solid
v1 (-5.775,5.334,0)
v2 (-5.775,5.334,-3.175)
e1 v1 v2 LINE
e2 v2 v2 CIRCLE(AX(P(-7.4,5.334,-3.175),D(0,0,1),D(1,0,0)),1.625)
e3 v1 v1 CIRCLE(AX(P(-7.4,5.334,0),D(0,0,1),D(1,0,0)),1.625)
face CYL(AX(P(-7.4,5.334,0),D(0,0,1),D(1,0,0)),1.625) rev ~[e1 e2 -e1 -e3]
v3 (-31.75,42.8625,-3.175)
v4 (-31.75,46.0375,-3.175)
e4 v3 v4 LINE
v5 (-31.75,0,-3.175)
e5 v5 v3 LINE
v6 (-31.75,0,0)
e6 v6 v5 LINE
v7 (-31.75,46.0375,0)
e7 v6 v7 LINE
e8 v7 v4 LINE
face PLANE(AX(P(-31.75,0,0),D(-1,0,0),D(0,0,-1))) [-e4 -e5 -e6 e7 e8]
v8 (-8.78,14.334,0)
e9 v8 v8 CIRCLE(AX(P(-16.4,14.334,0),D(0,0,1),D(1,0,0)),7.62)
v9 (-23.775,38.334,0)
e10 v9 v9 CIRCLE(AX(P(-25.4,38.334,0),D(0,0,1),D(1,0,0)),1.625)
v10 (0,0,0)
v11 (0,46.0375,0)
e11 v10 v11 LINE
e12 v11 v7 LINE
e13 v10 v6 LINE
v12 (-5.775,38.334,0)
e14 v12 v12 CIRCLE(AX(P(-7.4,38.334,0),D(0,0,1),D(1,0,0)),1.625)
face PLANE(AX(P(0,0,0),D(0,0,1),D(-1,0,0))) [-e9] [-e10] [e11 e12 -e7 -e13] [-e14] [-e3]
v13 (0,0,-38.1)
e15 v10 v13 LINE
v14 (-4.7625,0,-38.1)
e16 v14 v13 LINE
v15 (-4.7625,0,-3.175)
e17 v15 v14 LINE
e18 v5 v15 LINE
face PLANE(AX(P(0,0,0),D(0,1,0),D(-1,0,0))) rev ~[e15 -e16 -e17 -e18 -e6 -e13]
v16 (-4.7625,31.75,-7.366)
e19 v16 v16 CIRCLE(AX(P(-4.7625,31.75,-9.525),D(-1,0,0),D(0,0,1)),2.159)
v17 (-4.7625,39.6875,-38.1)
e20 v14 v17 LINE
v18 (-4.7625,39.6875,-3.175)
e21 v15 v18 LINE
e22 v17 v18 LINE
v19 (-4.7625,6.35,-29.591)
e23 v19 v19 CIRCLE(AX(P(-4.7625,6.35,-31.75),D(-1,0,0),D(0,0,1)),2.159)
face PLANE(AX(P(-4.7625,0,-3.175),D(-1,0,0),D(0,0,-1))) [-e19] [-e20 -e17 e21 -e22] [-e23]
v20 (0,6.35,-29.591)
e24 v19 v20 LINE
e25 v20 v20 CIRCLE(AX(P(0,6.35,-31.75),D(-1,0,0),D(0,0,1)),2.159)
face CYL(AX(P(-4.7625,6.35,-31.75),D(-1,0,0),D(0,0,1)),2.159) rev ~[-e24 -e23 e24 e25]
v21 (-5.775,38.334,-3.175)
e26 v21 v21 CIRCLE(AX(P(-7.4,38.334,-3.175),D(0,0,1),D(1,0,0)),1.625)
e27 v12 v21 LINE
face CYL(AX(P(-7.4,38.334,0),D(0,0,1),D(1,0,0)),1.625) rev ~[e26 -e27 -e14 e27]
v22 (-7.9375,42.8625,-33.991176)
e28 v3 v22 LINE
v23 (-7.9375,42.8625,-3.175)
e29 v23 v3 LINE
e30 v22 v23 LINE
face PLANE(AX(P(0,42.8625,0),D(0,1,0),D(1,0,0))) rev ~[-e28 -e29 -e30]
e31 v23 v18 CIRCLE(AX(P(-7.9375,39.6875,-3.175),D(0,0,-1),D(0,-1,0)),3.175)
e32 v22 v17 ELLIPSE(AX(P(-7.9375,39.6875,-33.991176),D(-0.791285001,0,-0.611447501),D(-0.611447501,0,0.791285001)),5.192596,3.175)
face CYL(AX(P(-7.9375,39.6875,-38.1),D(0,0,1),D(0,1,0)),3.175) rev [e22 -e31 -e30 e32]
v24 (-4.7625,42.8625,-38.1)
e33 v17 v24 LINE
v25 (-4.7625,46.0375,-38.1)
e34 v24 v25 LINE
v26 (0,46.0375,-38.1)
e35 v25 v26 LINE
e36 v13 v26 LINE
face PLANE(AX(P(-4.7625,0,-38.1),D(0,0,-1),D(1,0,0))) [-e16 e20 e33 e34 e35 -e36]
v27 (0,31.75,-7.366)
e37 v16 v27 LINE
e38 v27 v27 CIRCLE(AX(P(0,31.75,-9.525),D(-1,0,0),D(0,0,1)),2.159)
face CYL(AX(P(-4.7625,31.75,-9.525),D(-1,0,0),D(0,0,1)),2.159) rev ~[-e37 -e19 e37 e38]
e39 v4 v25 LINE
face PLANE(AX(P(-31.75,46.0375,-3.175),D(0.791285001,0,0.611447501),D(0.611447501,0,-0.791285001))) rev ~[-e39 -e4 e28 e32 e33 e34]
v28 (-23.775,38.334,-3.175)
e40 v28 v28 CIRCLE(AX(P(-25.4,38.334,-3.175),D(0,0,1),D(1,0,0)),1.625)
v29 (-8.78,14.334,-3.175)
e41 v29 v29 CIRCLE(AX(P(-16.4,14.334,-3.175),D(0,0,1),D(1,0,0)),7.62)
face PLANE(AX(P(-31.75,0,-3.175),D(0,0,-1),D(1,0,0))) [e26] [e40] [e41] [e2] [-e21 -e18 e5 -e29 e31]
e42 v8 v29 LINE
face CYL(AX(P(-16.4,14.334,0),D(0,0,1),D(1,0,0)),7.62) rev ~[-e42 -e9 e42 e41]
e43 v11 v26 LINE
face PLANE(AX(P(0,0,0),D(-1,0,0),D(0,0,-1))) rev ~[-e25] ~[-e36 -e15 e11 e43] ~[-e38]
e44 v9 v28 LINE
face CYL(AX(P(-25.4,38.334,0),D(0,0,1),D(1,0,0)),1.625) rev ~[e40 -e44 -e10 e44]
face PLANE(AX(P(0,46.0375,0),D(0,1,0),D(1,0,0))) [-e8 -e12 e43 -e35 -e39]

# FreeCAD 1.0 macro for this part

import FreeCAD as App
import Part
import Sketcher

V = App.Vector
Q = App.Units.Quantity


def edges_at(feature, points):
    """Names of the edges that pass closest to the given points."""
    edges = feature.Shape.Edges
    near = lambda p: min(range(len(edges)), key=lambda i: edges[i].distToShape(Part.Vertex(*p))[0])
    return sorted({f"Edge{near(p) + 1}" for p in points})

doc = App.newDocument("Part")
body = doc.addObject("PartDesign::Body", "Body")

sketch1 = body.newObject("Sketcher::SketchObject", "Sketch")
sketch1.AttachmentSupport = (doc.getObject("XZ_Plane"), [""])
sketch1.MapMode = "FlatFace"
sketch1.addGeometry([
    Part.LineSegment(V(-31.8, 0, 0), V(0, 0, 0)),
    Part.LineSegment(V(0, 0, 0), V(0, -38.1, 0)),
    Part.LineSegment(V(0, -38.1, 0), V(-4.8, -38.1, 0)),
    Part.LineSegment(V(-4.8, -38.1, 0), V(-4.8, -3.2, 0)),
    Part.LineSegment(V(-4.8, -3.2, 0), V(-31.8, -3.2, 0)),
    Part.LineSegment(V(-31.8, -3.2, 0), V(-31.8, 0, 0)),
], False)
sketch1.addConstraint([
    Sketcher.Constraint("Coincident", 0, 2, 1, 1),
    Sketcher.Constraint("Coincident", 1, 2, 2, 1),
    Sketcher.Constraint("Coincident", 2, 2, 3, 1),
    Sketcher.Constraint("Coincident", 3, 2, 4, 1),
    Sketcher.Constraint("Coincident", 4, 2, 5, 1),
    Sketcher.Constraint("Coincident", 5, 2, 0, 1),
    Sketcher.Constraint("Horizontal", 0),
    Sketcher.Constraint("Vertical", 1),
    Sketcher.Constraint("Horizontal", 2),
    Sketcher.Constraint("Vertical", 3),
    Sketcher.Constraint("Horizontal", 4),
    Sketcher.Constraint("Vertical", 5),
    Sketcher.Constraint("Coincident", 0, 2, -1, 1),
    Sketcher.Constraint("DistanceY", 1, 2, 1, 1, Q("1.5 in")),
    Sketcher.Constraint("DistanceX", 0, 1, 0, 2, Q("1.25 in")),
    Sketcher.Constraint("DistanceX", 2, 2, 2, 1, Q("0.1875 in")),
    Sketcher.Constraint("DistanceY", 5, 1, 5, 2, Q("0.125 in")),
])
pad1 = body.newObject("PartDesign::Pad", "Pad")
pad1.Profile = sketch1
pad1.Length = Q("1.8125 in")
pad1.Reversed = True

sketch2 = body.newObject("Sketcher::SketchObject", "Sketch001")
sketch2.AttachmentSupport = (doc.getObject("XY_Plane"), [""])
sketch2.MapMode = "FlatFace"
sketch2.addGeometry([
    Part.Circle(V(-7.4, 5.3, 0), V(0, 0, 1), 1.6),
    Part.Circle(V(-25.4, 38.3, 0), V(0, 0, 1), 1.6),
    Part.Circle(V(-7.4, 38.3, 0), V(0, 0, 1), 1.6),
    Part.Circle(V(-16.4, 14.3, 0), V(0, 0, 1), 7.6),
], False)
sketch2.addConstraint([
    Sketcher.Constraint("Equal", 0, 1),
    Sketcher.Constraint("Equal", 1, 2),
    Sketcher.Constraint("Horizontal", 1, 3, 2, 3),
    Sketcher.Constraint("Vertical", 0, 3, 2, 3),
    Sketcher.Constraint("Diameter", 3, Q("0.6 in")),
    Sketcher.Constraint("Diameter", 0, 3.25),
    Sketcher.Constraint("DistanceY", -1, 1, 0, 3, Q("0.21 in")),
    Sketcher.Constraint("DistanceX", 1, 3, -1, 1, Q("1 in")),
    Sketcher.Constraint("DistanceX", 1, 3, 0, 3, 18.0),
    Sketcher.Constraint("DistanceY", 0, 3, 1, 3, 33.0),
    Sketcher.Constraint("DistanceX", 3, 3, 0, 3, 9.0),
    Sketcher.Constraint("DistanceY", 0, 3, 3, 3, 9.0),
])
pocket1 = body.newObject("PartDesign::Pocket", "Pocket")
pocket1.Profile = sketch2
pocket1.Length = Q("1.8125 in")

sketch3 = body.newObject("Sketcher::SketchObject", "Sketch002")
sketch3.AttachmentSupport = (doc.getObject("XZ_Plane"), [""])
sketch3.MapMode = "FlatFace"
sketch3.AttachmentOffset = App.Placement(V(0, 0, -1.8125 * 25.4), App.Rotation())
sketch3.addGeometry([
    Part.LineSegment(V(-5, -3, 0), V(-5, -38, 0)),
    Part.LineSegment(V(-5, -38, 0), V(-32, -3, 0)),
    Part.LineSegment(V(-32, -3, 0), V(-5, -3, 0)),
], False)
sketch3.addConstraint([
    Sketcher.Constraint("Coincident", 0, 2, 1, 1),
    Sketcher.Constraint("Coincident", 1, 2, 2, 1),
    Sketcher.Constraint("Coincident", 2, 2, 0, 1),
    Sketcher.Constraint("Vertical", 0),
    Sketcher.Constraint("Horizontal", 2),
    Sketcher.Constraint("DistanceY", 0, 2, -1, 1, Q("1.5 in")),
    Sketcher.Constraint("DistanceX", 2, 1, 2, 2, Q("1.0625 in")),
    Sketcher.Constraint("DistanceY", 0, 2, 0, 1, Q("1.375 in")),
    Sketcher.Constraint("DistanceX", 1, 2, -1, 1, Q("1.25 in")),
])
pad2 = body.newObject("PartDesign::Pad", "Pad001")
pad2.Profile = sketch3
pad2.Length = Q("0.125 in")

sketch4 = body.newObject("Sketcher::SketchObject", "Sketch003")
sketch4.AttachmentSupport = (doc.getObject("YZ_Plane"), [""])
sketch4.MapMode = "FlatFace"
sketch4.AttachmentOffset = App.Placement(V(0, 0, -0.1875 * 25.4), App.Rotation())
sketch4.addGeometry([
    Part.Circle(V(31.8, -9.5, 0), V(0, 0, 1), 2.2),
    Part.Circle(V(6.3, -31.8, 0), V(0, 0, 1), 2.2),
], False)
sketch4.addConstraint([
    Sketcher.Constraint("Equal", 0, 1),
    Sketcher.Constraint("Diameter", 0, Q("0.17 in")),
    Sketcher.Constraint("DistanceX", -1, 1, 1, 3, Q("0.25 in")),
    Sketcher.Constraint("DistanceX", 1, 3, 0, 3, Q("1 in")),
    Sketcher.Constraint("DistanceY", 1, 3, -1, 1, Q("1.25 in")),
    Sketcher.Constraint("DistanceY", 0, 3, -1, 1, Q("0.375 in")),
])
pocket2 = body.newObject("PartDesign::Pocket", "Pocket001")
pocket2.Profile = sketch4
pocket2.Type = "ThroughAll"
pocket2.Reversed = True
doc.recompute()

fillet = body.newObject("PartDesign::Fillet", "Fillet")
fillet.Base = (pocket2, edges_at(pocket2, [(-4.763, 42.862, -20.637)]))
fillet.Radius = Q("0.125 in")

doc.recompute()
